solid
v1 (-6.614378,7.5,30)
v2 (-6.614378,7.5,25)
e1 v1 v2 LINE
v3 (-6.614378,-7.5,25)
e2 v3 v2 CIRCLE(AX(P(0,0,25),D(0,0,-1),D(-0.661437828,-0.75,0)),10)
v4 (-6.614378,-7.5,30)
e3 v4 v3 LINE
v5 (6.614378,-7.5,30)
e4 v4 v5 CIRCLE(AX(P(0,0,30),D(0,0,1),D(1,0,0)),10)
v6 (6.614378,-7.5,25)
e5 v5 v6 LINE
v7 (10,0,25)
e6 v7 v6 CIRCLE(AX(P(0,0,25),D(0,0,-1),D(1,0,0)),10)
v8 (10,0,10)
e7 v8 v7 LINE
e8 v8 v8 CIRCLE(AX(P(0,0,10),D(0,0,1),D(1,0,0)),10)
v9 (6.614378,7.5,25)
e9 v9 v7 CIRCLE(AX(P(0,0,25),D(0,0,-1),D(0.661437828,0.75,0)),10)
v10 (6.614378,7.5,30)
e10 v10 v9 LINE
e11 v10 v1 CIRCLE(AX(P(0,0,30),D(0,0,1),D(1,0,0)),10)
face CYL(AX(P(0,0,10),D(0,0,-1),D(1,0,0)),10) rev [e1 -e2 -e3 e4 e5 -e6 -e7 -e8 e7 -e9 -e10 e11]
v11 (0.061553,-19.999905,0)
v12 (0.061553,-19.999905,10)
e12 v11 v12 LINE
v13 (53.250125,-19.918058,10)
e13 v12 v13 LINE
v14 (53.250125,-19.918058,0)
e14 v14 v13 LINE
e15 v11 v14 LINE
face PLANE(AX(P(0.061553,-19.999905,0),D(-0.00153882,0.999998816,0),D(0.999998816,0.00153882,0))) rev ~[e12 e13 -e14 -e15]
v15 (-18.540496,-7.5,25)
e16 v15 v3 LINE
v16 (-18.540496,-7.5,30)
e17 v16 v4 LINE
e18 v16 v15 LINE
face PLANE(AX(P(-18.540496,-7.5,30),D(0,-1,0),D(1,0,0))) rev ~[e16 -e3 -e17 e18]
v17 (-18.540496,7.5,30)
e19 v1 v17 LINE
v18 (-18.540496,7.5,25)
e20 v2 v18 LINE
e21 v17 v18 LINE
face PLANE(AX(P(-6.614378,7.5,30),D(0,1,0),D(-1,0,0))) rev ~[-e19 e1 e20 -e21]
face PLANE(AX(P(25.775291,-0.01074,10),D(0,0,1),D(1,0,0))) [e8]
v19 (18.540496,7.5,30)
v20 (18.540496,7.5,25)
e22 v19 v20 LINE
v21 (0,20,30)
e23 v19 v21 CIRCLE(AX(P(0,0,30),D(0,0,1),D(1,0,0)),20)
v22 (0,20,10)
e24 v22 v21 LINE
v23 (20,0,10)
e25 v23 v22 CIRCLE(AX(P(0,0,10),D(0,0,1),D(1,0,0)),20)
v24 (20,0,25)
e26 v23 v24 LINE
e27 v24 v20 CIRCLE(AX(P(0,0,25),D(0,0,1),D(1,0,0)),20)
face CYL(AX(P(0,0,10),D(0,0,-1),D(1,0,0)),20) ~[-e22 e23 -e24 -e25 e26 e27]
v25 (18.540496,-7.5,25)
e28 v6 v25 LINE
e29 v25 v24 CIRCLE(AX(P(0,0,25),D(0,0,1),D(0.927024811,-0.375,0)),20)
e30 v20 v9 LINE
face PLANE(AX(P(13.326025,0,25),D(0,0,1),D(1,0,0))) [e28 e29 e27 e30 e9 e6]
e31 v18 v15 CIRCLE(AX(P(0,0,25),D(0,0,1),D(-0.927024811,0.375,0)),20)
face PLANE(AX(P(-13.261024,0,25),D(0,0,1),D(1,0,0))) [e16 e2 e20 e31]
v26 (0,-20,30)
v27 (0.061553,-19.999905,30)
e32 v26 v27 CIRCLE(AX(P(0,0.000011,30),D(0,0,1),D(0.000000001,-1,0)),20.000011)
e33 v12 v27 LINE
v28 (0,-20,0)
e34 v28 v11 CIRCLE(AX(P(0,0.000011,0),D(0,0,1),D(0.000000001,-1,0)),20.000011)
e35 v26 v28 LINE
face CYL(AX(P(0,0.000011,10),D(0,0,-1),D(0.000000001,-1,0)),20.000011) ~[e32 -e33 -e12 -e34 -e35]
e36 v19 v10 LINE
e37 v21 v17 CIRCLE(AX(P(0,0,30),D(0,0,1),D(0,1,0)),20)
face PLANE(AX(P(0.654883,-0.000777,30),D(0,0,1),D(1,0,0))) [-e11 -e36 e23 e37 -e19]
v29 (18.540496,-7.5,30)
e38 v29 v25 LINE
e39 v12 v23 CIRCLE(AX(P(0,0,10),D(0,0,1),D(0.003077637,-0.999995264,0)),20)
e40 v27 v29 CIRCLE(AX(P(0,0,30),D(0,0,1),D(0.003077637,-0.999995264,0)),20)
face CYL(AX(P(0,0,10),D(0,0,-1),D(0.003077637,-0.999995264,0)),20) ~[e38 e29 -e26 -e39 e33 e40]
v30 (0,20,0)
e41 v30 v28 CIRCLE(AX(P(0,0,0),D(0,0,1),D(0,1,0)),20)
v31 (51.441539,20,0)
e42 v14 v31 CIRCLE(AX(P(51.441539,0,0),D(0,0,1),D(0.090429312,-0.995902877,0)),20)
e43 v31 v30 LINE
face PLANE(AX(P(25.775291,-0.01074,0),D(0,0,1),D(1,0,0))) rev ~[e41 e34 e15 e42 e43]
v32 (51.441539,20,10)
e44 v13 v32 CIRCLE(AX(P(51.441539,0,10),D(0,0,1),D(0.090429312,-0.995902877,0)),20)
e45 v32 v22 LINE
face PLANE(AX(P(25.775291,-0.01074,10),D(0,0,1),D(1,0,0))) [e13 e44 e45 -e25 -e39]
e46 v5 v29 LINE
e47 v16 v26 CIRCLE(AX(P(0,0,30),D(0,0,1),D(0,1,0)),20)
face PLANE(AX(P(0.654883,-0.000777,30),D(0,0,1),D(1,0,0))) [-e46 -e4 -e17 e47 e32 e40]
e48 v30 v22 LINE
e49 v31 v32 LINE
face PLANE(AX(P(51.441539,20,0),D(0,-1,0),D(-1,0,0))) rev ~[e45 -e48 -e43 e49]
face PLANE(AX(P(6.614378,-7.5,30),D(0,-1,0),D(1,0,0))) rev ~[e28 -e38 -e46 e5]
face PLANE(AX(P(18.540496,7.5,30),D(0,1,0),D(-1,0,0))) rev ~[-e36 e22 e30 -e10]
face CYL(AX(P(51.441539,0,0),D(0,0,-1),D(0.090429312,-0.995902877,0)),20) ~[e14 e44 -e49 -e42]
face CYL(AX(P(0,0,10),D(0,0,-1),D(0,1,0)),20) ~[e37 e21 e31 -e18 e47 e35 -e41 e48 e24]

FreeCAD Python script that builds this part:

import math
import FreeCAD as App
import Part
import Sketcher
Q = App.Units.Quantity

doc = App.newDocument("Part")
params = doc.addObject("Spreadsheet::Sheet", "Params")
for row, (alias, value) in enumerate([
    ("sketch1_radius", "20 mm"),
    ("pad1_length", "10 mm"),
    ("sketch2_diameter", "20 mm"),
    ("sketch2_radius", "20 mm"),
    ("pad2_length", "20 mm"),
    ("sketch3_radius", "20 mm"),
    ("sketch3_radius2", "10 mm"),
    ("pocket1_length", "5 mm"),
], start=1):
    params.set(f"A{row}", alias)
    params.set(f"B{row}", "=" + value)
    params.setAlias(f"B{row}", alias)

body = doc.addObject("PartDesign::Body", "Body")

# Sketch on XY plane
sketch1 = doc.addObject("Sketcher::SketchObject", "Sketch")
body.addObject(sketch1)
sketch1.AttachmentSupport = (doc.XY_Plane, [""])
sketch1.MapMode = "FlatFace"
sketch1.addGeometry([
    Part.LineSegment(App.Vector(51.44, 20, 0), App.Vector(0, 20, 0)),  # 0
    Part.ArcOfCircle(Part.Circle(App.Vector(0, 0, 0), App.Vector(0, 0, 1), 20), math.radians(90), math.radians(270)),  # 1
    Part.ArcOfCircle(Part.Circle(App.Vector(0, 0, 0), App.Vector(0, 0, 1), 20), math.radians(-90), math.radians(-89.82)),  # 2
    Part.LineSegment(App.Vector(0.06, -20, 0), App.Vector(53.25, -19.92, 0)),  # 3
    Part.ArcOfCircle(Part.Circle(App.Vector(51.44, 0, 0), App.Vector(0, 0, 1), 20), math.radians(-85), math.radians(90)),  # 4
], False)
sketch1.addConstraint([
    Sketcher.Constraint("Tangent", 0, 2, 1, 1),
    Sketcher.Constraint("Tangent", 1, 2, 2, 1),
    Sketcher.Constraint("Coincident", 2, 2, 3, 1),
    Sketcher.Constraint("Coincident", 3, 2, 4, 1),
    Sketcher.Constraint("Tangent", 4, 2, 0, 1),
    Sketcher.Constraint("Horizontal", 0),
    Sketcher.Constraint("Coincident", 1, 3, -1, 1),
    Sketcher.Constraint("Equal", 1, 4),
    Sketcher.Constraint("PointOnObject", 1, 2, -2),
    Sketcher.Constraint("Radius", 1, Q("20 mm")),
    Sketcher.Constraint("Radius", 2, Q("20.000011 mm")),
    Sketcher.Constraint("DistanceX", 0, 2, 0, 1, Q("51.441539 mm")),
    Sketcher.Constraint("DistanceY", 3, 2, 2, 3, Q("19.918069 mm")),
    Sketcher.Constraint("Distance", 3, Q("53.188636 mm")),
])
sketch1.setExpression("Constraints[9]", "Params.sketch1_radius")
pad1 = doc.addObject("PartDesign::Pad", "Pad")
body.addObject(pad1)
pad1.Profile = sketch1
pad1.setExpression("Length", "Params.pad1_length")

# Sketch on XY plane
sketch2 = doc.addObject("Sketcher::SketchObject", "Sketch001")
body.addObject(sketch2)
sketch2.AttachmentSupport = (doc.XY_Plane, [""])
sketch2.MapMode = "FlatFace"
sketch2.AttachmentOffset = App.Placement(App.Vector(0, 0, 10), App.Rotation())
sketch2.addGeometry([
    Part.ArcOfCircle(Part.Circle(App.Vector(0, 0, 0), App.Vector(0, 0, 1), 20), math.radians(-89.823664), math.radians(0)),  # 0
    Part.ArcOfCircle(Part.Circle(App.Vector(0, 0, 0), App.Vector(0, 0, 1), 20), math.radians(0), math.radians(90)),  # 1
    Part.ArcOfCircle(Part.Circle(App.Vector(0, 0, 0), App.Vector(0, 0, 1), 20), math.radians(90), math.radians(270)),  # 2
    Part.ArcOfCircle(Part.Circle(App.Vector(0, 0.000011, 0), App.Vector(0, 0, 1), 20.000011), math.radians(-90), math.radians(-89.823664)),  # 3
    Part.Circle(App.Vector(0, 0, 0), App.Vector(0, 0, 1), 10),  # 4
], False)
sketch2.addConstraint([
    Sketcher.Constraint("Coincident", 0, 2, 1, 1),
    Sketcher.Constraint("Coincident", 1, 2, 2, 1),
    Sketcher.Constraint("Coincident", 2, 2, 3, 1),
    Sketcher.Constraint("Coincident", 3, 2, 0, 1),
    Sketcher.Constraint("Coincident", 0, 3, -1, 1),
    Sketcher.Constraint("Coincident", 1, 3, -1, 1),
    Sketcher.Constraint("Coincident", 4, 3, -1, 1),
    Sketcher.Constraint("PointOnObject", 3, 3, -2),
    Sketcher.Constraint("PointOnObject", 0, 2, -1),
    Sketcher.Constraint("PointOnObject", 1, 2, -2),
    Sketcher.Constraint("PointOnObject", 2, 2, -2),
    Sketcher.Constraint("Diameter", 4, Q("20 mm")),
    Sketcher.Constraint("Radius", 0, Q("20 mm")),
    Sketcher.Constraint("DistanceX", 2, 3, 0, 2, Q("20 mm")),
    Sketcher.Constraint("Radius", 3, Q("20.000011 mm")),
    Sketcher.Constraint("DistanceX", -1, 1, 3, 2, Q("0.061553 mm")),
])
sketch2.setExpression("Constraints[11]", "Params.sketch2_diameter")
sketch2.setExpression("Constraints[12]", "Params.sketch2_radius")
pad2 = doc.addObject("PartDesign::Pad", "Pad001")
body.addObject(pad2)
pad2.Profile = sketch2
pad2.setExpression("Length", "Params.pad2_length")

# Sketch on XY plane
sketch3 = doc.addObject("Sketcher::SketchObject", "Sketch002")
body.addObject(sketch3)
sketch3.AttachmentSupport = (doc.XY_Plane, [""])
sketch3.MapMode = "FlatFace"
sketch3.AttachmentOffset = App.Placement(App.Vector(0, 0, 30), App.Rotation())
sketch3.addGeometry([
    Part.LineSegment(App.Vector(-7, 8, 0), App.Vector(-19, 8, 0)),  # 0
    Part.ArcOfCircle(Part.Circle(App.Vector(0, 0, 0), App.Vector(0, 0, 1), 20), math.radians(158), math.radians(202)),  # 1
    Part.LineSegment(App.Vector(-19, -8, 0), App.Vector(-7, -8, 0)),  # 2
    Part.ArcOfCircle(Part.Circle(App.Vector(0, 0, 0), App.Vector(0, 0, 1), 10), math.radians(131), math.radians(229)),  # 3
    Part.ArcOfCircle(Part.Circle(App.Vector(0, 0, 0), App.Vector(0, 0, 1), 20), math.radians(0), math.radians(22)),  # 4
    Part.LineSegment(App.Vector(19, 8, 0), App.Vector(7, 8, 0)),  # 5
    Part.ArcOfCircle(Part.Circle(App.Vector(0, 0, 0), App.Vector(0, 0, 1), 10), math.radians(0), math.radians(49)),  # 6
    Part.ArcOfCircle(Part.Circle(App.Vector(0, 0, 0), App.Vector(0, 0, 1), 10), math.radians(-49), math.radians(0)),  # 7
    Part.LineSegment(App.Vector(7, -8, 0), App.Vector(19, -8, 0)),  # 8
    Part.ArcOfCircle(Part.Circle(App.Vector(0, 0, 0), App.Vector(0, 0, 1), 20), math.radians(-22), math.radians(0)),  # 9
], False)
sketch3.addConstraint([
    Sketcher.Constraint("Coincident", 0, 2, 1, 1),
    Sketcher.Constraint("Coincident", 1, 2, 2, 1),
    Sketcher.Constraint("Coincident", 2, 2, 3, 2),
    Sketcher.Constraint("Coincident", 3, 1, 0, 1),
    Sketcher.Constraint("Coincident", 4, 2, 5, 1),
    Sketcher.Constraint("Coincident", 5, 2, 6, 2),
    Sketcher.Constraint("Tangent", 6, 1, 7, 2),
    Sketcher.Constraint("Coincident", 7, 1, 8, 1),
    Sketcher.Constraint("Coincident", 8, 2, 9, 1),
    Sketcher.Constraint("Tangent", 9, 2, 4, 1),
    Sketcher.Constraint("Horizontal", 0),
    Sketcher.Constraint("Horizontal", 2),
    Sketcher.Constraint("Horizontal", 5),
    Sketcher.Constraint("Horizontal", 8),
    Sketcher.Constraint("Coincident", 1, 3, -1, 1),
    Sketcher.Constraint("Coincident", 3, 3, -1, 1),
    Sketcher.Constraint("Coincident", 4, 3, -1, 1),
    Sketcher.Constraint("Coincident", 6, 3, -1, 1),
    Sketcher.Constraint("Equal", 1, 4),
    Sketcher.Constraint("Equal", 3, 6),
    Sketcher.Constraint("Equal", 6, 7),
    Sketcher.Constraint("Equal", 4, 9),
    Sketcher.Constraint("PointOnObject", 6, 1, -1),
    Sketcher.Constraint("PointOnObject", 9, 2, -1),
    Sketcher.Constraint("Horizontal", 3, 1, 4, 2),
    Sketcher.Constraint("Horizontal", 2, 2, 7, 1),
    Sketcher.Constraint("Vertical", 0, 2, 1, 2),
    Sketcher.Constraint("Radius", 1, Q("20 mm")),
    Sketcher.Constraint("Radius", 3, Q("10 mm")),
    Sketcher.Constraint("DistanceY", 1, 2, 0, 2, Q("15 mm")),
])
sketch3.setExpression("Constraints[27]", "Params.sketch3_radius")
sketch3.setExpression("Constraints[28]", "Params.sketch3_radius2")
pocket1 = doc.addObject("PartDesign::Pocket", "Pocket")
body.addObject(pocket1)
pocket1.Profile = sketch3
pocket1.setExpression("Length", "Params.pocket1_length")

doc.recompute()
